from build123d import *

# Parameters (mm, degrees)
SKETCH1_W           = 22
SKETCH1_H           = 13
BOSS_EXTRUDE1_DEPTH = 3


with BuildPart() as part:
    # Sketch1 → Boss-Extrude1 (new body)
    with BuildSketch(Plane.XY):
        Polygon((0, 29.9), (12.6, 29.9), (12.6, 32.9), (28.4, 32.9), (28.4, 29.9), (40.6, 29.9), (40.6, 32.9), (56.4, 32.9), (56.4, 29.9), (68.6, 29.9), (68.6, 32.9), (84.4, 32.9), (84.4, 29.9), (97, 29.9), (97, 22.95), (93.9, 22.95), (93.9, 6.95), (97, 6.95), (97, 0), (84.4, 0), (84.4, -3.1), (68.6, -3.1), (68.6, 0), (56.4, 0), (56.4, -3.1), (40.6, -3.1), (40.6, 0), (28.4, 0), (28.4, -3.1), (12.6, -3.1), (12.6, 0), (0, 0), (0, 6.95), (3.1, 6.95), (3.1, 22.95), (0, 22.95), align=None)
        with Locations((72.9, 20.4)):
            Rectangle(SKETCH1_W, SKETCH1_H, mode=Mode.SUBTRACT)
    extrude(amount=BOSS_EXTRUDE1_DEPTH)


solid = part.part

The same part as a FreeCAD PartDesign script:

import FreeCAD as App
import Part
import Sketcher
from FreeCAD import Vector
Q = App.Units.Quantity


def add_polygon(sketch, points):
    """Adds a closed chain of lines whose ends are joined by coincident constraints."""
    first, n = sketch.GeometryCount, len(points)
    for a, b in zip(points, points[1:] + points[:1]):
        sketch.addGeometry(Part.LineSegment(App.Vector(*a, 0), App.Vector(*b, 0)), False)
    for i in range(n):
        sketch.addConstraint(Sketcher.Constraint("Coincident", first + i, 2, first + (i + 1) % n, 1))

doc = App.newDocument("Part")
body = doc.addObject("PartDesign::Body", "Body")

# Sketch on XY plane
sketch1 = body.newObject("Sketcher::SketchObject", "Sketch")
sketch1.AttachmentSupport = (doc.getObject("XY_Plane"), [""])
sketch1.MapMode = "FlatFace"
add_polygon(sketch1, [(12.6, 29.9), (0, 29.9), (0, 22.95), (3.1, 22.95), (3.1, 6.95), (0, 6.95), (0, 0), (12.6, 0), (12.6, -3.1), (28.4, -3.1), (28.4, 0), (40.6, 0), (40.6, -3.1), (56.4, -3.1), (56.4, 0), (68.6, 0), (68.6, -3.1), (84.4, -3.1), (84.4, 0), (97, 0), (97, 6.95), (93.9, 6.95), (93.9, 22.95), (97, 22.95), (97, 29.9), (84.4, 29.9), (84.4, 32.9), (68.6, 32.9), (68.6, 29.9), (56.4, 29.9), (56.4, 32.9), (40.6, 32.9), (40.6, 29.9), (28.4, 29.9), (28.4, 32.9), (12.6, 32.9)])  # lines 0-35
add_polygon(sketch1, [(61.9, 13.9), (61.9, 26.9), (83.9, 26.9), (83.9, 13.9)])  # lines 36-39
sketch1.addConstraint([
    Sketcher.Constraint("Horizontal", 0),
    Sketcher.Constraint("Vertical", 1),
    Sketcher.Constraint("Horizontal", 2),
    Sketcher.Constraint("Vertical", 3),
    Sketcher.Constraint("Horizontal", 4),
    Sketcher.Constraint("Vertical", 5),
    Sketcher.Constraint("Horizontal", 6),
    Sketcher.Constraint("Vertical", 7),
    Sketcher.Constraint("Horizontal", 8),
    Sketcher.Constraint("Vertical", 9),
    Sketcher.Constraint("Horizontal", 10),
    Sketcher.Constraint("Vertical", 11),
    Sketcher.Constraint("Horizontal", 12),
    Sketcher.Constraint("Vertical", 13),
    Sketcher.Constraint("Horizontal", 14),
    Sketcher.Constraint("Vertical", 15),
    Sketcher.Constraint("Horizontal", 16),
    Sketcher.Constraint("Vertical", 17),
    Sketcher.Constraint("Horizontal", 18),
    Sketcher.Constraint("Vertical", 19),
    Sketcher.Constraint("Horizontal", 20),
    Sketcher.Constraint("Vertical", 21),
    Sketcher.Constraint("Horizontal", 22),
    Sketcher.Constraint("Vertical", 23),
    Sketcher.Constraint("Horizontal", 24),
    Sketcher.Constraint("Vertical", 25),
    Sketcher.Constraint("Horizontal", 26),
    Sketcher.Constraint("Vertical", 27),
    Sketcher.Constraint("Horizontal", 28),
    Sketcher.Constraint("Vertical", 29),
    Sketcher.Constraint("Horizontal", 30),
    Sketcher.Constraint("Vertical", 31),
    Sketcher.Constraint("Horizontal", 32),
    Sketcher.Constraint("Vertical", 33),
    Sketcher.Constraint("Horizontal", 34),
    Sketcher.Constraint("Vertical", 35),
    Sketcher.Constraint("Vertical", 36),
    Sketcher.Constraint("Horizontal", 37),
    Sketcher.Constraint("Vertical", 38),
    Sketcher.Constraint("Horizontal", 39),
    Sketcher.Constraint("Coincident", 5, 2, -1, 1),
    Sketcher.Constraint("PointOnObject", 0, 2, -2),
    Sketcher.Constraint("PointOnObject", 9, 2, -1),
    Sketcher.Constraint("PointOnObject", 13, 2, -1),
    Sketcher.Constraint("PointOnObject", 17, 2, -1),
    Sketcher.Constraint("Horizontal", 8, 2, 11, 2),
    Sketcher.Constraint("Horizontal", 12, 2, 15, 2),
    Sketcher.Constraint("Horizontal", 4, 2, 19, 2),
    Sketcher.Constraint("Horizontal", 2, 2, 21, 2),
    Sketcher.Constraint("Horizontal", 0, 2, 23, 2),
    Sketcher.Constraint("Horizontal", 24, 2, 27, 2),
    Sketcher.Constraint("Horizontal", 26, 2, 29, 2),
    Sketcher.Constraint("Horizontal", 28, 2, 31, 2),
    Sketcher.Constraint("Horizontal", 30, 2, 33, 2),
    Sketcher.Constraint("Vertical", 19, 2, 22, 2),
    Sketcher.Constraint("Vertical", 17, 2, 24, 2),
    Sketcher.Constraint("Vertical", 15, 2, 26, 2),
    Sketcher.Constraint("Vertical", 13, 2, 28, 2),
    Sketcher.Constraint("Vertical", 11, 2, 30, 2),
    Sketcher.Constraint("Vertical", 9, 2, 32, 2),
    Sketcher.Constraint("Vertical", 7, 2, 34, 2),
    Sketcher.Constraint("Equal", 8, 12),
    Sketcher.Constraint("Equal", 10, 14),
    Sketcher.Constraint("Equal", 12, 16),
    Sketcher.Constraint("Equal", 6, 18),
    Sketcher.Constraint("Equal", 4, 20),
    Sketcher.Constraint("Equal", 1, 5),
    Sketcher.Constraint("Equal", 22, 7),
    Sketcher.Constraint("DistanceX", 37, 1, 37, 2, Q("22 mm")),
    Sketcher.Constraint("DistanceY", 3, 2, 3, 1, Q("16 mm")),
    Sketcher.Constraint("DistanceY", 25, 1, 25, 2, Q("3 mm")),
    Sketcher.Constraint("DistanceY", 36, 1, 36, 2, Q("13 mm")),
    Sketcher.Constraint("DistanceX", 0, 2, 0, 1, Q("12.6 mm")),
    Sketcher.Constraint("DistanceX", 2, 1, 2, 2, Q("3.1 mm")),
    Sketcher.Constraint("DistanceX", 8, 1, 8, 2, Q("15.8 mm")),
    Sketcher.Constraint("DistanceX", 10, 1, 10, 2, Q("12.2 mm")),
    Sketcher.Constraint("DistanceY", 36, 2, 28, 2, Q("3 mm")),
    Sketcher.Constraint("DistanceX", 37, 2, 21, 2, Q("10 mm")),
    Sketcher.Constraint("DistanceY", 1, 2, 1, 1, Q("6.95 mm")),
])
pad1 = body.newObject("PartDesign::Pad", "Pad")
pad1.Profile = sketch1
pad1.Length = 3

doc.recompute()
